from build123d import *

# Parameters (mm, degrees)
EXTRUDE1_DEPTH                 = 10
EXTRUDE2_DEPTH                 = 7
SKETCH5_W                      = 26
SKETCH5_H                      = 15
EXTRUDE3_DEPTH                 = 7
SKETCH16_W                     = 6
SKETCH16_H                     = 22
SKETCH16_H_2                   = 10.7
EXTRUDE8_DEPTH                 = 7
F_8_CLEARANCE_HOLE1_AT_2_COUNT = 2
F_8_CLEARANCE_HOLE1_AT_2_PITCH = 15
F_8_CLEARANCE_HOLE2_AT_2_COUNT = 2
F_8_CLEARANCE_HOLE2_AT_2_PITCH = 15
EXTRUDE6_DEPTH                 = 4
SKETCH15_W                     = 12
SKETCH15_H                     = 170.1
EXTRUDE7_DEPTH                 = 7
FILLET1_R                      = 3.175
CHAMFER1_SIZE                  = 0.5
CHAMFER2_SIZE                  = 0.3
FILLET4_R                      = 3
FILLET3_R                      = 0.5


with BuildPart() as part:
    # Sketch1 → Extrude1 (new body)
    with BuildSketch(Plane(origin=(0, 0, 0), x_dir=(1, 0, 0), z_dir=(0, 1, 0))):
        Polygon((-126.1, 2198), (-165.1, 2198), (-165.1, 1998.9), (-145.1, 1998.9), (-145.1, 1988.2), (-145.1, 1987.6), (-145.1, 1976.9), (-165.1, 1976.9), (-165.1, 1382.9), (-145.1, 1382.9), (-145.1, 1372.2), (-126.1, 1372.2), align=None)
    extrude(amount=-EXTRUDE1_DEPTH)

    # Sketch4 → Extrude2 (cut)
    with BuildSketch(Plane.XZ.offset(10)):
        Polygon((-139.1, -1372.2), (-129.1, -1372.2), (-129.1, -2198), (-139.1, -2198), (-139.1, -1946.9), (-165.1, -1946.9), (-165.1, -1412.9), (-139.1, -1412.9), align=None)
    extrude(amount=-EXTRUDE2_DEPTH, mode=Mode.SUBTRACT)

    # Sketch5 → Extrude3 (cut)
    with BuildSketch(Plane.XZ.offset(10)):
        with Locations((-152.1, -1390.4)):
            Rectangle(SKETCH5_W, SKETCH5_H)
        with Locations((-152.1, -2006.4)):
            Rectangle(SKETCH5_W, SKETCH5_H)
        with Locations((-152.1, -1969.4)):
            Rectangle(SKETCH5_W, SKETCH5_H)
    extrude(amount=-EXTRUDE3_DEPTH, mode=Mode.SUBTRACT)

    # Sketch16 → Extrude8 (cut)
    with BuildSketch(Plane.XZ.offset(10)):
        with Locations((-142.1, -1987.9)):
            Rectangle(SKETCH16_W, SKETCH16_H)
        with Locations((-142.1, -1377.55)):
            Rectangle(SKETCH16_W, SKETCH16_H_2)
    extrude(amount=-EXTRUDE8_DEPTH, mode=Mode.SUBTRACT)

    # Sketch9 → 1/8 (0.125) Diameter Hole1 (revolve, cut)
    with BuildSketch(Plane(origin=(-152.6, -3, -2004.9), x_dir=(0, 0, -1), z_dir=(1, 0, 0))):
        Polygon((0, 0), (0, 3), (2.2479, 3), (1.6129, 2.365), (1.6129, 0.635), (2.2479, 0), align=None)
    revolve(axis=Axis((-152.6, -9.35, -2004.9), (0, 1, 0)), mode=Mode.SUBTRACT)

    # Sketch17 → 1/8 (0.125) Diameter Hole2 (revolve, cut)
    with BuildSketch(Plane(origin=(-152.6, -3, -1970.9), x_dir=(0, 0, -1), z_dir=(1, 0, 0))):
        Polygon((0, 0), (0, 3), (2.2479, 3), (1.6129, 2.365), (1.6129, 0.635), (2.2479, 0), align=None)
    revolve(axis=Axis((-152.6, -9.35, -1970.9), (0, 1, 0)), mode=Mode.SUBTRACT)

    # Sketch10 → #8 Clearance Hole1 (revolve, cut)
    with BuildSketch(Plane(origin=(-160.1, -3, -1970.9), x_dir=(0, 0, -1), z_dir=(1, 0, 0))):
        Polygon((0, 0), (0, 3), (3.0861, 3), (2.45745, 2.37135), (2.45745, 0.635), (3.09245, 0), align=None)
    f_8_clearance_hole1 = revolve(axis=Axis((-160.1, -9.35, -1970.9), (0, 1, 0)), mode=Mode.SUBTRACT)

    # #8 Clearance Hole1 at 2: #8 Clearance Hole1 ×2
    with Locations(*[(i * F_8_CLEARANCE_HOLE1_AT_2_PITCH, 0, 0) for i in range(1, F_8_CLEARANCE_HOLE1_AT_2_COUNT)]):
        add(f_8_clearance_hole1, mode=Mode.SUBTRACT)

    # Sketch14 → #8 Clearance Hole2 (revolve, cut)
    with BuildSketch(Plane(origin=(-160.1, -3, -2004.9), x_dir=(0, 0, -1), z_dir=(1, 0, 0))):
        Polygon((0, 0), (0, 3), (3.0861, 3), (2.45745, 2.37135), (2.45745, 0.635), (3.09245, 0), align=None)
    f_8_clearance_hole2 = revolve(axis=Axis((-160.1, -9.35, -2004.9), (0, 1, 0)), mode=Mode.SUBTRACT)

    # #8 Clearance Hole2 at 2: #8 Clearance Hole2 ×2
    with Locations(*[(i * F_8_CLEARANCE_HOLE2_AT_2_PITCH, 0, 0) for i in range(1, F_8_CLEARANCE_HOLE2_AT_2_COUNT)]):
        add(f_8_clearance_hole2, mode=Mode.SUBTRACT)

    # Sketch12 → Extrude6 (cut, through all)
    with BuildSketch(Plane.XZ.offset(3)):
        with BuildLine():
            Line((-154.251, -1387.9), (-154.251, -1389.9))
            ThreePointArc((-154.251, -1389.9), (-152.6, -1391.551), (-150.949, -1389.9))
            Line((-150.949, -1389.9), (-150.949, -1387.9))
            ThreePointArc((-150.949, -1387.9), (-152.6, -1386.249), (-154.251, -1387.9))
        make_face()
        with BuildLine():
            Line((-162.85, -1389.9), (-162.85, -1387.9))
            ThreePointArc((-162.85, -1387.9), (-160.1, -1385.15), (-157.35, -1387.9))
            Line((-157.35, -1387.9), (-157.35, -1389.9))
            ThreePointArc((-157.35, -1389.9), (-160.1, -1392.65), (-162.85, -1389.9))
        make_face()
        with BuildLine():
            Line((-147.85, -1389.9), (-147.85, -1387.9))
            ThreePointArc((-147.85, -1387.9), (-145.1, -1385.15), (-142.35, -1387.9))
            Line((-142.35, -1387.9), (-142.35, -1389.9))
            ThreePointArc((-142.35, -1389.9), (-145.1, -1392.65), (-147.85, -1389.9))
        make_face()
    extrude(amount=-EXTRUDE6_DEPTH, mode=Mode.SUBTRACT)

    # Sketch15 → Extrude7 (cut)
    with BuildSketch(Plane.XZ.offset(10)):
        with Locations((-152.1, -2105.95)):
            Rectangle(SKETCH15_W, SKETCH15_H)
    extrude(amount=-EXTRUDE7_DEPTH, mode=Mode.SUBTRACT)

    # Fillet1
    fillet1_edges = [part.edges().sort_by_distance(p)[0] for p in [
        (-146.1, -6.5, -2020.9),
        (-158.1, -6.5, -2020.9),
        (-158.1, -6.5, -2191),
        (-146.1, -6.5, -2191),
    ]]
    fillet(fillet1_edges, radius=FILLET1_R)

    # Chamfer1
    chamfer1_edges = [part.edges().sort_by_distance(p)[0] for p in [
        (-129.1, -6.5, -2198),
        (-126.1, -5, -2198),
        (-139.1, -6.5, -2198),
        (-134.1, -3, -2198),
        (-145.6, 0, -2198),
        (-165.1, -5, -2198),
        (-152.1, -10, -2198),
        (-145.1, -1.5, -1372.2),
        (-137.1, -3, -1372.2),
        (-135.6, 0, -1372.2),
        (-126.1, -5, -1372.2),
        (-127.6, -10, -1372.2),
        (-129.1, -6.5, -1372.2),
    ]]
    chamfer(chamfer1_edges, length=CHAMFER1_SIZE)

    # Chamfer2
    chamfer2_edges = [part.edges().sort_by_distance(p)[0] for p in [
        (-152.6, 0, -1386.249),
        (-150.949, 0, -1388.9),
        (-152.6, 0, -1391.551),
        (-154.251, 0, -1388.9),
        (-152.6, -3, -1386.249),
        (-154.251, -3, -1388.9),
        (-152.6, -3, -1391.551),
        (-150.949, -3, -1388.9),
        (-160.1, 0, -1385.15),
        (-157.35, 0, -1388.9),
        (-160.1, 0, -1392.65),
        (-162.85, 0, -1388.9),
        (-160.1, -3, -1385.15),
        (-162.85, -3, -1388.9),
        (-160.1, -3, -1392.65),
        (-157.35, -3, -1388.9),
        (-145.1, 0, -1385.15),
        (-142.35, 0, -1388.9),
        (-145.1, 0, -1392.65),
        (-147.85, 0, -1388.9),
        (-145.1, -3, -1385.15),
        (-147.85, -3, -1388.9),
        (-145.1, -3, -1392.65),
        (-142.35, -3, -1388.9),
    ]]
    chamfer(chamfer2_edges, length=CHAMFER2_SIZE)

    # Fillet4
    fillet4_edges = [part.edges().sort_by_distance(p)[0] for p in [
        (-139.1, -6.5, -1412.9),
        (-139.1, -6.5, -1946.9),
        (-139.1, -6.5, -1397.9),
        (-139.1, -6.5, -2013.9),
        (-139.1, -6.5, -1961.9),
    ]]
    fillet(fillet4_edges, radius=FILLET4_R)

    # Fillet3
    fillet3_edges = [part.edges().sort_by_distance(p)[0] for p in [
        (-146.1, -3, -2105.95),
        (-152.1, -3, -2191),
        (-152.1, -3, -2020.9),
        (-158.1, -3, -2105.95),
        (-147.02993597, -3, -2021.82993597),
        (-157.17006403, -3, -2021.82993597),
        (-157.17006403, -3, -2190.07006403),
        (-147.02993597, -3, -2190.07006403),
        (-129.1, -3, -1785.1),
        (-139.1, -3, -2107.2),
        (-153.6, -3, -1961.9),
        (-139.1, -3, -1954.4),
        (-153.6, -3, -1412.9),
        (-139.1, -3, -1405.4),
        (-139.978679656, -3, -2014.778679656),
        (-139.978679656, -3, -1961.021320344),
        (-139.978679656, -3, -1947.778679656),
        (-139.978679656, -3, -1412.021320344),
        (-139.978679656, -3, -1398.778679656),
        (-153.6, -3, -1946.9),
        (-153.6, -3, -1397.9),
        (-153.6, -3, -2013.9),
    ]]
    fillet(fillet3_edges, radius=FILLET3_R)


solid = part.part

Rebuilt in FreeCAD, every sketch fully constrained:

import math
import FreeCAD as App
import Part
import Sketcher

V = App.Vector
Q = App.Units.Quantity


def edges_at(feature, points):
    """Names of the edges that pass closest to the given points."""
    edges = feature.Shape.Edges
    near = lambda p: min(range(len(edges)), key=lambda i: edges[i].distToShape(Part.Vertex(*p))[0])
    return sorted({f"Edge{near(p) + 1}" for p in points})

doc = App.newDocument("Part")
params = doc.addObject("Spreadsheet::Sheet", "Params")
for row, (alias, value) in enumerate([
    ("sketch1_width", "39 mm"),
    ("sketch1_width2", "20 mm"),
    ("sketch1_height", "22 mm"),
    ("sketch1_height2", "594 mm"),
    ("sketch1_height3", "199.1 mm"),
    ("pad1_length", "10 mm"),
    ("sketch2_width", "10 mm"),
    ("sketch2_width2", "26 mm"),
    ("sketch2_height", "534 mm"),
    ("sketch2_height2", "40.7 mm"),
    ("sketch2_height3", "251.1 mm"),
    ("pocket1_length", "7 mm"),
    ("sketch3_width", "26 mm"),
    ("sketch3_height", "15 mm"),
    ("pocket2_length", "7 mm"),
    ("sketch4_width", "6 mm"),
    ("sketch4_height", "22 mm"),
    ("sketch4_height2", "10.7 mm"),
    ("pocket3_length", "7 mm"),
    ("sketch5_width", "3 mm"),
    ("sketch5_width2", "1.73 mm"),
    ("groove_angle", "360 deg"),
    ("sketch6_width", "3 mm"),
    ("sketch6_width2", "1.73 mm"),
    ("groove2_angle", "360 deg"),
    ("sketch7_width", "3 mm"),
    ("groove3_angle", "360 deg"),
    ("linearpattern_pitch", "15 mm"),
    ("sketch8_width", "3 mm"),
    ("groove4_angle", "360 deg"),
    ("linearpattern2_pitch", "15 mm"),
    ("sketch9_height", "2 mm"),
    ("sketch9_radius", "2.75 mm"),
    ("sketch10_width", "12 mm"),
    ("sketch10_height", "170.1 mm"),
    ("pocket5_length", "7 mm"),
    ("fillet_radius", "3.175 mm"),
    ("chamfer_size", "0.5 mm"),
    ("chamfer2_size", "0.3 mm"),
    ("fillet2_radius", "3 mm"),
    ("fillet3_radius", "0.5 mm"),
], start=1):
    params.set(f"A{row}", alias)
    params.set(f"B{row}", "=" + value)
    params.setAlias(f"B{row}", alias)

body = doc.addObject("PartDesign::Body", "Body")

# Sketch on XZ plane
sketch1 = body.newObject("Sketcher::SketchObject", "Sketch")
sketch1.AttachmentSupport = (doc.getObject("XZ_Plane"), [""])
sketch1.MapMode = "FlatFace"
sketch1.addGeometry([
    Part.LineSegment(V(-126.1, -2198, 0), V(-165.1, -2198, 0)),  # 0
    Part.LineSegment(V(-165.1, -2198, 0), V(-165.1, -1998.9, 0)),  # 1
    Part.LineSegment(V(-165.1, -1998.9, 0), V(-145.1, -1998.9, 0)),  # 2
    Part.LineSegment(V(-145.1, -1998.9, 0), V(-145.1, -1976.9, 0)),  # 3
    Part.LineSegment(V(-145.1, -1976.9, 0), V(-165.1, -1976.9, 0)),  # 4
    Part.LineSegment(V(-165.1, -1976.9, 0), V(-165.1, -1382.9, 0)),  # 5
    Part.LineSegment(V(-165.1, -1382.9, 0), V(-145.1, -1382.9, 0)),  # 6
    Part.LineSegment(V(-145.1, -1382.9, 0), V(-145.1, -1372.2, 0)),  # 7
    Part.LineSegment(V(-145.1, -1372.2, 0), V(-126.1, -1372.2, 0)),  # 8
    Part.LineSegment(V(-126.1, -1372.2, 0), V(-126.1, -2198, 0)),  # 9
], False)
sketch1.addConstraint([
    Sketcher.Constraint("Coincident", 0, 2, 1, 1),
    Sketcher.Constraint("Coincident", 1, 2, 2, 1),
    Sketcher.Constraint("Coincident", 2, 2, 3, 1),
    Sketcher.Constraint("Coincident", 3, 2, 4, 1),
    Sketcher.Constraint("Coincident", 4, 2, 5, 1),
    Sketcher.Constraint("Coincident", 5, 2, 6, 1),
    Sketcher.Constraint("Coincident", 6, 2, 7, 1),
    Sketcher.Constraint("Coincident", 7, 2, 8, 1),
    Sketcher.Constraint("Coincident", 8, 2, 9, 1),
    Sketcher.Constraint("Coincident", 9, 2, 0, 1),
    Sketcher.Constraint("Horizontal", 0),
    Sketcher.Constraint("Vertical", 1),
    Sketcher.Constraint("Horizontal", 2),
    Sketcher.Constraint("Vertical", 3),
    Sketcher.Constraint("Horizontal", 4),
    Sketcher.Constraint("Vertical", 5),
    Sketcher.Constraint("Horizontal", 6),
    Sketcher.Constraint("Vertical", 7),
    Sketcher.Constraint("Horizontal", 8),
    Sketcher.Constraint("Vertical", 9),
    Sketcher.Constraint("Vertical", 1, 2, 4, 2),
    Sketcher.Constraint("Vertical", 3, 2, 6, 2),
    Sketcher.Constraint("DistanceX", 0, 2, 0, 1, Q("39 mm")),
    Sketcher.Constraint("DistanceX", 2, 1, 2, 2, Q("20 mm")),
    Sketcher.Constraint("DistanceY", 3, 1, 3, 2, Q("22 mm")),
    Sketcher.Constraint("DistanceY", 5, 1, 5, 2, Q("594 mm")),
    Sketcher.Constraint("DistanceY", 1, 1, 1, 2, Q("199.1 mm")),
    Sketcher.Constraint("DistanceY", 7, 1, 7, 2, Q("10.7 mm")),
    Sketcher.Constraint("DistanceY", 0, 2, -1, 1, Q("2198 mm")),
    Sketcher.Constraint("DistanceX", 0, 2, -1, 1, Q("165.1 mm")),
])
sketch1.setExpression("Constraints[22]", "Params.sketch1_width")
sketch1.setExpression("Constraints[23]", "Params.sketch1_width2")
sketch1.setExpression("Constraints[24]", "Params.sketch1_height")
sketch1.setExpression("Constraints[25]", "Params.sketch1_height2")
sketch1.setExpression("Constraints[26]", "Params.sketch1_height3")
pad1 = body.newObject("PartDesign::Pad", "Pad")
pad1.Profile = sketch1
pad1.setExpression("Length", "Params.pad1_length")

# Sketch on XZ plane
sketch2 = body.newObject("Sketcher::SketchObject", "Sketch001")
sketch2.AttachmentSupport = (doc.getObject("XZ_Plane"), [""])
sketch2.MapMode = "FlatFace"
sketch2.AttachmentOffset = App.Placement(V(0, 0, 10), App.Rotation())
sketch2.addGeometry([
    Part.LineSegment(V(-129.1, -1372.2, 0), V(-139.1, -1372.2, 0)),  # 0
    Part.LineSegment(V(-139.1, -1372.2, 0), V(-139.1, -1412.9, 0)),  # 1
    Part.LineSegment(V(-139.1, -1412.9, 0), V(-165.1, -1412.9, 0)),  # 2
    Part.LineSegment(V(-165.1, -1412.9, 0), V(-165.1, -1946.9, 0)),  # 3
    Part.LineSegment(V(-165.1, -1946.9, 0), V(-139.1, -1946.9, 0)),  # 4
    Part.LineSegment(V(-139.1, -1946.9, 0), V(-139.1, -2198, 0)),  # 5
    Part.LineSegment(V(-139.1, -2198, 0), V(-129.1, -2198, 0)),  # 6
    Part.LineSegment(V(-129.1, -2198, 0), V(-129.1, -1372.2, 0)),  # 7
], False)
sketch2.addConstraint([
    Sketcher.Constraint("Coincident", 0, 2, 1, 1),
    Sketcher.Constraint("Coincident", 1, 2, 2, 1),
    Sketcher.Constraint("Coincident", 2, 2, 3, 1),
    Sketcher.Constraint("Coincident", 3, 2, 4, 1),
    Sketcher.Constraint("Coincident", 4, 2, 5, 1),
    Sketcher.Constraint("Coincident", 5, 2, 6, 1),
    Sketcher.Constraint("Coincident", 6, 2, 7, 1),
    Sketcher.Constraint("Coincident", 7, 2, 0, 1),
    Sketcher.Constraint("Horizontal", 0),
    Sketcher.Constraint("Vertical", 1),
    Sketcher.Constraint("Horizontal", 2),
    Sketcher.Constraint("Vertical", 3),
    Sketcher.Constraint("Horizontal", 4),
    Sketcher.Constraint("Vertical", 5),
    Sketcher.Constraint("Horizontal", 6),
    Sketcher.Constraint("Vertical", 7),
    Sketcher.Constraint("Vertical", 1, 2, 4, 2),
    Sketcher.Constraint("DistanceX", 0, 2, 0, 1, Q("10 mm")),
    Sketcher.Constraint("DistanceX", 2, 2, 2, 1, Q("26 mm")),
    Sketcher.Constraint("DistanceY", 3, 2, 3, 1, Q("534 mm")),
    Sketcher.Constraint("DistanceY", 1, 2, 1, 1, Q("40.7 mm")),
    Sketcher.Constraint("DistanceY", 5, 2, 5, 1, Q("251.1 mm")),
    Sketcher.Constraint("DistanceY", 5, 2, -1, 1, Q("2198 mm")),
    Sketcher.Constraint("DistanceX", 0, 2, -1, 1, Q("139.1 mm")),
])
sketch2.setExpression("Constraints[17]", "Params.sketch2_width")
sketch2.setExpression("Constraints[18]", "Params.sketch2_width2")
sketch2.setExpression("Constraints[19]", "Params.sketch2_height")
sketch2.setExpression("Constraints[20]", "Params.sketch2_height2")
sketch2.setExpression("Constraints[21]", "Params.sketch2_height3")
pocket1 = body.newObject("PartDesign::Pocket", "Pocket")
pocket1.Profile = sketch2
pocket1.setExpression("Length", "Params.pocket1_length")

# Sketch on XZ plane
sketch3 = body.newObject("Sketcher::SketchObject", "Sketch002")
sketch3.AttachmentSupport = (doc.getObject("XZ_Plane"), [""])
sketch3.MapMode = "FlatFace"
sketch3.AttachmentOffset = App.Placement(V(0, 0, 10), App.Rotation())
sketch3.addGeometry([
    Part.LineSegment(V(-165.1, -1382.9, 0), V(-165.1, -1397.9, 0)),  # 0
    Part.LineSegment(V(-165.1, -1397.9, 0), V(-139.1, -1397.9, 0)),  # 1
    Part.LineSegment(V(-139.1, -1397.9, 0), V(-139.1, -1382.9, 0)),  # 2
    Part.LineSegment(V(-139.1, -1382.9, 0), V(-165.1, -1382.9, 0)),  # 3
    Part.LineSegment(V(-165.1, -1998.9, 0), V(-165.1, -2013.9, 0)),  # 4
    Part.LineSegment(V(-165.1, -2013.9, 0), V(-139.1, -2013.9, 0)),  # 5
    Part.LineSegment(V(-139.1, -2013.9, 0), V(-139.1, -1998.9, 0)),  # 6
    Part.LineSegment(V(-139.1, -1998.9, 0), V(-165.1, -1998.9, 0)),  # 7
    Part.LineSegment(V(-165.1, -1961.9, 0), V(-165.1, -1976.9, 0)),  # 8
    Part.LineSegment(V(-165.1, -1976.9, 0), V(-139.1, -1976.9, 0)),  # 9
    Part.LineSegment(V(-139.1, -1976.9, 0), V(-139.1, -1961.9, 0)),  # 10
    Part.LineSegment(V(-139.1, -1961.9, 0), V(-165.1, -1961.9, 0)),  # 11
], False)
sketch3.addConstraint([
    Sketcher.Constraint("Coincident", 0, 2, 1, 1),
    Sketcher.Constraint("Coincident", 1, 2, 2, 1),
    Sketcher.Constraint("Coincident", 2, 2, 3, 1),
    Sketcher.Constraint("Coincident", 3, 2, 0, 1),
    Sketcher.Constraint("Coincident", 4, 2, 5, 1),
    Sketcher.Constraint("Coincident", 5, 2, 6, 1),
    Sketcher.Constraint("Coincident", 6, 2, 7, 1),
    Sketcher.Constraint("Coincident", 7, 2, 4, 1),
    Sketcher.Constraint("Coincident", 8, 2, 9, 1),
    Sketcher.Constraint("Coincident", 9, 2, 10, 1),
    Sketcher.Constraint("Coincident", 10, 2, 11, 1),
    Sketcher.Constraint("Coincident", 11, 2, 8, 1),
    Sketcher.Constraint("Vertical", 0),
    Sketcher.Constraint("Horizontal", 1),
    Sketcher.Constraint("Vertical", 2),
    Sketcher.Constraint("Horizontal", 3),
    Sketcher.Constraint("Vertical", 4),
    Sketcher.Constraint("Horizontal", 5),
    Sketcher.Constraint("Vertical", 6),
    Sketcher.Constraint("Horizontal", 7),
    Sketcher.Constraint("Vertical", 8),
    Sketcher.Constraint("Horizontal", 9),
    Sketcher.Constraint("Vertical", 10),
    Sketcher.Constraint("Horizontal", 11),
    Sketcher.Constraint("Vertical", 3, 2, 4, 2),
    Sketcher.Constraint("Vertical", 2, 2, 5, 2),
    Sketcher.Constraint("Vertical", 7, 2, 8, 2),
    Sketcher.Constraint("Vertical", 6, 2, 9, 2),
    Sketcher.Constraint("Equal", 2, 4),
    Sketcher.Constraint("Equal", 6, 8),
    Sketcher.Constraint("DistanceX", 1, 1, 1, 2, Q("26 mm")),
    Sketcher.Constraint("DistanceY", 0, 2, 0, 1, Q("15 mm")),
    Sketcher.Constraint("DistanceY", 4, 2, 0, 2, Q("616 mm")),
    Sketcher.Constraint("DistanceY", 7, 2, 8, 2, Q("22 mm")),
    Sketcher.Constraint("DistanceX", 0, 2, -1, 1, Q("165.1 mm")),
    Sketcher.Constraint("DistanceY", 0, 2, -1, 1, Q("1397.9 mm")),
])
sketch3.setExpression("Constraints[30]", "Params.sketch3_width")
sketch3.setExpression("Constraints[31]", "Params.sketch3_height")
pocket2 = body.newObject("PartDesign::Pocket", "Pocket001")
pocket2.Profile = sketch3
pocket2.setExpression("Length", "Params.pocket2_length")

# Sketch on XZ plane
sketch4 = body.newObject("Sketcher::SketchObject", "Sketch003")
sketch4.AttachmentSupport = (doc.getObject("XZ_Plane"), [""])
sketch4.MapMode = "FlatFace"
sketch4.AttachmentOffset = App.Placement(V(0, 0, 10), App.Rotation())
sketch4.addGeometry([
    Part.LineSegment(V(-145.1, -1976.9, 0), V(-145.1, -1998.9, 0)),  # 0
    Part.LineSegment(V(-145.1, -1998.9, 0), V(-139.1, -1998.9, 0)),  # 1
    Part.LineSegment(V(-139.1, -1998.9, 0), V(-139.1, -1976.9, 0)),  # 2
    Part.LineSegment(V(-139.1, -1976.9, 0), V(-145.1, -1976.9, 0)),  # 3
    Part.LineSegment(V(-145.1, -1372.2, 0), V(-145.1, -1382.9, 0)),  # 4
    Part.LineSegment(V(-145.1, -1382.9, 0), V(-139.1, -1382.9, 0)),  # 5
    Part.LineSegment(V(-139.1, -1382.9, 0), V(-139.1, -1372.2, 0)),  # 6
    Part.LineSegment(V(-139.1, -1372.2, 0), V(-145.1, -1372.2, 0)),  # 7
], False)
sketch4.addConstraint([
    Sketcher.Constraint("Coincident", 0, 2, 1, 1),
    Sketcher.Constraint("Coincident", 1, 2, 2, 1),
    Sketcher.Constraint("Coincident", 2, 2, 3, 1),
    Sketcher.Constraint("Coincident", 3, 2, 0, 1),
    Sketcher.Constraint("Coincident", 4, 2, 5, 1),
    Sketcher.Constraint("Coincident", 5, 2, 6, 1),
    Sketcher.Constraint("Coincident", 6, 2, 7, 1),
    Sketcher.Constraint("Coincident", 7, 2, 4, 1),
    Sketcher.Constraint("Vertical", 0),
    Sketcher.Constraint("Horizontal", 1),
    Sketcher.Constraint("Vertical", 2),
    Sketcher.Constraint("Horizontal", 3),
    Sketcher.Constraint("Vertical", 4),
    Sketcher.Constraint("Horizontal", 5),
    Sketcher.Constraint("Vertical", 6),
    Sketcher.Constraint("Horizontal", 7),
    Sketcher.Constraint("Vertical", 3, 2, 4, 2),
    Sketcher.Constraint("Vertical", 2, 2, 5, 2),
    Sketcher.Constraint("DistanceX", 1, 1, 1, 2, Q("6 mm")),
    Sketcher.Constraint("DistanceY", 0, 2, 0, 1, Q("22 mm")),
    Sketcher.Constraint("DistanceY", 4, 2, 4, 1, Q("10.7 mm")),
    Sketcher.Constraint("DistanceY", 3, 2, 4, 2, Q("594 mm")),
    Sketcher.Constraint("DistanceX", 0, 2, -1, 1, Q("145.1 mm")),
    Sketcher.Constraint("DistanceY", 0, 2, -1, 1, Q("1998.9 mm")),
])
sketch4.setExpression("Constraints[18]", "Params.sketch4_width")
sketch4.setExpression("Constraints[19]", "Params.sketch4_height")
sketch4.setExpression("Constraints[20]", "Params.sketch4_height2")
pocket3 = body.newObject("PartDesign::Pocket", "Pocket002")
pocket3.Profile = sketch4
pocket3.setExpression("Length", "Params.pocket3_length")

# Sketch on YZ plane
sketch5 = body.newObject("Sketcher::SketchObject", "Sketch004")
sketch5.AttachmentSupport = (doc.getObject("YZ_Plane"), [""])
sketch5.MapMode = "FlatFace"
sketch5.AttachmentOffset = App.Placement(V(0, 0, -152.6), App.Rotation())
sketch5.addGeometry([
    Part.LineSegment(V(0, -2004.9, 0), V(-3, -2004.9, 0)),  # 0
    Part.LineSegment(V(-3, -2004.9, 0), V(-3, -2007.1479, 0)),  # 1
    Part.LineSegment(V(-3, -2007.1479, 0), V(-2.365, -2006.5129, 0)),  # 2
    Part.LineSegment(V(-2.365, -2006.5129, 0), V(-0.635, -2006.5129, 0)),  # 3
    Part.LineSegment(V(-0.635, -2006.5129, 0), V(0, -2007.1479, 0)),  # 4
    Part.LineSegment(V(0, -2007.1479, 0), V(0, -2004.9, 0)),  # 5
], False)
sketch5.addGeometry(Part.LineSegment(V(-3, -2004.9, 0), V(0, -2004.9, 0)), True)  # axis
sketch5.addConstraint([
    Sketcher.Constraint("Coincident", 0, 2, 1, 1),
    Sketcher.Constraint("Coincident", 1, 2, 2, 1),
    Sketcher.Constraint("Coincident", 2, 2, 3, 1),
    Sketcher.Constraint("Coincident", 3, 2, 4, 1),
    Sketcher.Constraint("Coincident", 4, 2, 5, 1),
    Sketcher.Constraint("Coincident", 5, 2, 0, 1),
    Sketcher.Constraint("Horizontal", 0),
    Sketcher.Constraint("Vertical", 1),
    Sketcher.Constraint("Horizontal", 3),
    Sketcher.Constraint("Vertical", 5),
    Sketcher.Constraint("Horizontal", 6),
    Sketcher.Constraint("Coincident", 6, 1, 0, 2),
    Sketcher.Constraint("PointOnObject", 4, 2, -2),
    Sketcher.Constraint("PointOnObject", 6, 2, -2),
    Sketcher.Constraint("Perpendicular", 2, 4),
    Sketcher.Constraint("Horizontal", 1, 2, 4, 2),
    Sketcher.Constraint("Equal", 2, 4),
    Sketcher.Constraint("DistanceX", 0, 2, 0, 1, Q("3 mm")),
    Sketcher.Constraint("DistanceX", 3, 1, 3, 2, Q("1.73 mm")),
    Sketcher.Constraint("DistanceY", 0, 2, -1, 1, Q("2004.9 mm")),
    Sketcher.Constraint("DistanceY", 1, 2, 1, 1, Q("2.2479 mm")),
])
sketch5.setExpression("Constraints[17]", "Params.sketch5_width")
sketch5.setExpression("Constraints[18]", "Params.sketch5_width2")
groove = body.newObject("PartDesign::Groove", "Groove")
groove.Profile = sketch5
groove.ReferenceAxis = (sketch5, ["Axis0"])
groove.setExpression("Angle", "Params.groove_angle")

# Sketch on YZ plane
sketch6 = body.newObject("Sketcher::SketchObject", "Sketch005")
sketch6.AttachmentSupport = (doc.getObject("YZ_Plane"), [""])
sketch6.MapMode = "FlatFace"
sketch6.AttachmentOffset = App.Placement(V(0, 0, -152.6), App.Rotation())
sketch6.addGeometry([
    Part.LineSegment(V(0, -1970.9, 0), V(-3, -1970.9, 0)),  # 0
    Part.LineSegment(V(-3, -1970.9, 0), V(-3, -1973.1479, 0)),  # 1
    Part.LineSegment(V(-3, -1973.1479, 0), V(-2.365, -1972.5129, 0)),  # 2
    Part.LineSegment(V(-2.365, -1972.5129, 0), V(-0.635, -1972.5129, 0)),  # 3
    Part.LineSegment(V(-0.635, -1972.5129, 0), V(0, -1973.1479, 0)),  # 4
    Part.LineSegment(V(0, -1973.1479, 0), V(0, -1970.9, 0)),  # 5
], False)
sketch6.addGeometry(Part.LineSegment(V(-3, -1970.9, 0), V(0, -1970.9, 0)), True)  # axis
sketch6.addConstraint([
    Sketcher.Constraint("Coincident", 0, 2, 1, 1),
    Sketcher.Constraint("Coincident", 1, 2, 2, 1),
    Sketcher.Constraint("Coincident", 2, 2, 3, 1),
    Sketcher.Constraint("Coincident", 3, 2, 4, 1),
    Sketcher.Constraint("Coincident", 4, 2, 5, 1),
    Sketcher.Constraint("Coincident", 5, 2, 0, 1),
    Sketcher.Constraint("Horizontal", 0),
    Sketcher.Constraint("Vertical", 1),
    Sketcher.Constraint("Horizontal", 3),
    Sketcher.Constraint("Vertical", 5),
    Sketcher.Constraint("Horizontal", 6),
    Sketcher.Constraint("Coincident", 6, 1, 0, 2),
    Sketcher.Constraint("PointOnObject", 4, 2, -2),
    Sketcher.Constraint("PointOnObject", 6, 2, -2),
    Sketcher.Constraint("Perpendicular", 2, 4),
    Sketcher.Constraint("Horizontal", 1, 2, 4, 2),
    Sketcher.Constraint("Equal", 2, 4),
    Sketcher.Constraint("DistanceX", 0, 2, 0, 1, Q("3 mm")),
    Sketcher.Constraint("DistanceX", 3, 1, 3, 2, Q("1.73 mm")),
    Sketcher.Constraint("DistanceY", 0, 2, -1, 1, Q("1970.9 mm")),
    Sketcher.Constraint("DistanceY", 1, 2, 1, 1, Q("2.2479 mm")),
])
sketch6.setExpression("Constraints[17]", "Params.sketch6_width")
sketch6.setExpression("Constraints[18]", "Params.sketch6_width2")
groove2 = body.newObject("PartDesign::Groove", "Groove001")
groove2.Profile = sketch6
groove2.ReferenceAxis = (sketch6, ["Axis0"])
groove2.setExpression("Angle", "Params.groove2_angle")

# Sketch on YZ plane
sketch7 = body.newObject("Sketcher::SketchObject", "Sketch006")
sketch7.AttachmentSupport = (doc.getObject("YZ_Plane"), [""])
sketch7.MapMode = "FlatFace"
sketch7.AttachmentOffset = App.Placement(V(0, 0, -160.1), App.Rotation())
sketch7.addGeometry([
    Part.LineSegment(V(0, -1970.9, 0), V(-3, -1970.9, 0)),  # 0
    Part.LineSegment(V(-3, -1970.9, 0), V(-3, -1973.99245, 0)),  # 1
    Part.LineSegment(V(-3, -1973.99245, 0), V(-2.365, -1973.35745, 0)),  # 2
    Part.LineSegment(V(-2.365, -1973.35745, 0), V(-0.62865, -1973.35745, 0)),  # 3
    Part.LineSegment(V(-0.62865, -1973.35745, 0), V(0, -1973.9861, 0)),  # 4
    Part.LineSegment(V(0, -1973.9861, 0), V(0, -1970.9, 0)),  # 5
], False)
sketch7.addGeometry(Part.LineSegment(V(-3, -1970.9, 0), V(0, -1970.9, 0)), True)  # axis
sketch7.addConstraint([
    Sketcher.Constraint("Coincident", 0, 2, 1, 1),
    Sketcher.Constraint("Coincident", 1, 2, 2, 1),
    Sketcher.Constraint("Coincident", 2, 2, 3, 1),
    Sketcher.Constraint("Coincident", 3, 2, 4, 1),
    Sketcher.Constraint("Coincident", 4, 2, 5, 1),
    Sketcher.Constraint("Coincident", 5, 2, 0, 1),
    Sketcher.Constraint("Horizontal", 0),
    Sketcher.Constraint("Vertical", 1),
    Sketcher.Constraint("Horizontal", 3),
    Sketcher.Constraint("Vertical", 5),
    Sketcher.Constraint("Horizontal", 6),
    Sketcher.Constraint("Coincident", 6, 1, 0, 2),
    Sketcher.Constraint("PointOnObject", 4, 2, -2),
    Sketcher.Constraint("PointOnObject", 6, 2, -2),
    Sketcher.Constraint("Perpendicular", 2, 4),
    Sketcher.Constraint("DistanceX", 0, 2, 0, 1, Q("3 mm")),
    Sketcher.Constraint("Angle", 2, Q("45 deg")),
    Sketcher.Constraint("DistanceY", 0, 2, -1, 1, Q("1970.9 mm")),
    Sketcher.Constraint("DistanceY", 5, 1, 5, 2, Q("3.0861 mm")),
    Sketcher.Constraint("DistanceX", 2, 2, -1, 1, Q("2.365 mm")),
    Sketcher.Constraint("DistanceX", 3, 1, 3, 2, Q("1.73635 mm")),
])
sketch7.setExpression("Constraints[15]", "Params.sketch7_width")
groove3 = body.newObject("PartDesign::Groove", "Groove002")
groove3.Profile = sketch7
groove3.ReferenceAxis = (sketch7, ["Axis0"])
groove3.setExpression("Angle", "Params.groove3_angle")
doc.recompute()

linearpattern = body.newObject("PartDesign::LinearPattern", "LinearPattern")
linearpattern.Originals = [groove3]
linearpattern.Direction = (doc.getObject("X_Axis"), [""])
linearpattern.Mode = "offset"
linearpattern.setExpression("Offset", "Params.linearpattern_pitch")
linearpattern.Occurrences = 2
body.Tip = linearpattern

# Sketch on YZ plane
sketch8 = body.newObject("Sketcher::SketchObject", "Sketch007")
sketch8.AttachmentSupport = (doc.getObject("YZ_Plane"), [""])
sketch8.MapMode = "FlatFace"
sketch8.AttachmentOffset = App.Placement(V(0, 0, -160.1), App.Rotation())
sketch8.addGeometry([
    Part.LineSegment(V(0, -2004.9, 0), V(-3, -2004.9, 0)),  # 0
    Part.LineSegment(V(-3, -2004.9, 0), V(-3, -2007.99245, 0)),  # 1
    Part.LineSegment(V(-3, -2007.99245, 0), V(-2.365, -2007.35745, 0)),  # 2
    Part.LineSegment(V(-2.365, -2007.35745, 0), V(-0.62865, -2007.35745, 0)),  # 3
    Part.LineSegment(V(-0.62865, -2007.35745, 0), V(0, -2007.9861, 0)),  # 4
    Part.LineSegment(V(0, -2007.9861, 0), V(0, -2004.9, 0)),  # 5
], False)
sketch8.addGeometry(Part.LineSegment(V(-3, -2004.9, 0), V(0, -2004.9, 0)), True)  # axis
sketch8.addConstraint([
    Sketcher.Constraint("Coincident", 0, 2, 1, 1),
    Sketcher.Constraint("Coincident", 1, 2, 2, 1),
    Sketcher.Constraint("Coincident", 2, 2, 3, 1),
    Sketcher.Constraint("Coincident", 3, 2, 4, 1),
    Sketcher.Constraint("Coincident", 4, 2, 5, 1),
    Sketcher.Constraint("Coincident", 5, 2, 0, 1),
    Sketcher.Constraint("Horizontal", 0),
    Sketcher.Constraint("Vertical", 1),
    Sketcher.Constraint("Horizontal", 3),
    Sketcher.Constraint("Vertical", 5),
    Sketcher.Constraint("Horizontal", 6),
    Sketcher.Constraint("Coincident", 6, 1, 0, 2),
    Sketcher.Constraint("PointOnObject", 4, 2, -2),
    Sketcher.Constraint("PointOnObject", 6, 2, -2),
    Sketcher.Constraint("Perpendicular", 2, 4),
    Sketcher.Constraint("DistanceX", 0, 2, 0, 1, Q("3 mm")),
    Sketcher.Constraint("Angle", 2, Q("45 deg")),
    Sketcher.Constraint("DistanceY", 0, 2, -1, 1, Q("2004.9 mm")),
    Sketcher.Constraint("DistanceY", 5, 1, 5, 2, Q("3.0861 mm")),
    Sketcher.Constraint("DistanceX", 2, 2, -1, 1, Q("2.365 mm")),
    Sketcher.Constraint("DistanceX", 3, 1, 3, 2, Q("1.73635 mm")),
])
sketch8.setExpression("Constraints[15]", "Params.sketch8_width")
groove4 = body.newObject("PartDesign::Groove", "Groove003")
groove4.Profile = sketch8
groove4.ReferenceAxis = (sketch8, ["Axis0"])
groove4.setExpression("Angle", "Params.groove4_angle")
doc.recompute()

linearpattern2 = body.newObject("PartDesign::LinearPattern", "LinearPattern001")
linearpattern2.Originals = [groove4]
linearpattern2.Direction = (doc.getObject("X_Axis"), [""])
linearpattern2.Mode = "offset"
linearpattern2.setExpression("Offset", "Params.linearpattern2_pitch")
linearpattern2.Occurrences = 2
body.Tip = linearpattern2

# Sketch on XZ plane
sketch9 = body.newObject("Sketcher::SketchObject", "Sketch008")
sketch9.AttachmentSupport = (doc.getObject("XZ_Plane"), [""])
sketch9.MapMode = "FlatFace"
sketch9.AttachmentOffset = App.Placement(V(0, 0, 3), App.Rotation())
sketch9.addGeometry([
    Part.LineSegment(V(-154.251, -1387.9, 0), V(-154.251, -1389.9, 0)),  # 0
    Part.ArcOfCircle(Part.Circle(V(-152.6, -1389.9, 0), V(0, 0, 1), 1.651), math.radians(180), math.radians(360)),  # 1
    Part.LineSegment(V(-150.949, -1389.9, 0), V(-150.949, -1387.9, 0)),  # 2
    Part.ArcOfCircle(Part.Circle(V(-152.6, -1387.9, 0), V(0, 0, 1), 1.651), math.radians(0), math.radians(180)),  # 3
    Part.LineSegment(V(-162.85, -1387.9, 0), V(-162.85, -1389.9, 0)),  # 4
    Part.ArcOfCircle(Part.Circle(V(-160.1, -1389.9, 0), V(0, 0, 1), 2.75), math.radians(180), math.radians(360)),  # 5
    Part.LineSegment(V(-157.35, -1389.9, 0), V(-157.35, -1387.9, 0)),  # 6
    Part.ArcOfCircle(Part.Circle(V(-160.1, -1387.9, 0), V(0, 0, 1), 2.75), math.radians(0), math.radians(180)),  # 7
    Part.LineSegment(V(-147.85, -1387.9, 0), V(-147.85, -1389.9, 0)),  # 8
    Part.ArcOfCircle(Part.Circle(V(-145.1, -1389.9, 0), V(0, 0, 1), 2.75), math.radians(180), math.radians(360)),  # 9
    Part.LineSegment(V(-142.35, -1389.9, 0), V(-142.35, -1387.9, 0)),  # 10
    Part.ArcOfCircle(Part.Circle(V(-145.1, -1387.9, 0), V(0, 0, 1), 2.75), math.radians(0), math.radians(180)),  # 11
], False)
sketch9.addConstraint([
    Sketcher.Constraint("Tangent", 0, 2, 1, 1),
    Sketcher.Constraint("Tangent", 1, 2, 2, 1),
    Sketcher.Constraint("Tangent", 2, 2, 3, 1),
    Sketcher.Constraint("Tangent", 3, 2, 0, 1),
    Sketcher.Constraint("Tangent", 4, 2, 5, 1),
    Sketcher.Constraint("Tangent", 5, 2, 6, 1),
    Sketcher.Constraint("Tangent", 6, 2, 7, 1),
    Sketcher.Constraint("Tangent", 7, 2, 4, 1),
    Sketcher.Constraint("Tangent", 8, 2, 9, 1),
    Sketcher.Constraint("Tangent", 9, 2, 10, 1),
    Sketcher.Constraint("Tangent", 10, 2, 11, 1),
    Sketcher.Constraint("Tangent", 11, 2, 8, 1),
    Sketcher.Constraint("Vertical", 0),
    Sketcher.Constraint("Vertical", 2),
    Sketcher.Constraint("Vertical", 4),
    Sketcher.Constraint("Vertical", 6),
    Sketcher.Constraint("Vertical", 8),
    Sketcher.Constraint("Vertical", 10),
    Sketcher.Constraint("Equal", 7, 9),
    Sketcher.Constraint("Horizontal", 1, 3, 5, 3),
    Sketcher.Constraint("Horizontal", 3, 3, 7, 3),
    Sketcher.Constraint("Horizontal", 5, 3, 9, 3),
    Sketcher.Constraint("Horizontal", 7, 3, 11, 3),
    Sketcher.Constraint("DistanceY", 0, 2, 0, 1, Q("2 mm")),
    Sketcher.Constraint("Radius", 5, Q("2.75 mm")),
    Sketcher.Constraint("Radius", 1, Q("1.651 mm")),
    Sketcher.Constraint("DistanceX", 5, 3, 9, 3, Q("15 mm")),
    Sketcher.Constraint("DistanceX", 1, 3, -1, 1, Q("152.6 mm")),
    Sketcher.Constraint("DistanceY", 1, 3, -1, 1, Q("1389.9 mm")),
    Sketcher.Constraint("DistanceX", 5, 3, -1, 1, Q("160.1 mm")),
])
sketch9.setExpression("Constraints[23]", "Params.sketch9_height")
sketch9.setExpression("Constraints[24]", "Params.sketch9_radius")
pocket4 = body.newObject("PartDesign::Pocket", "Pocket003")
pocket4.Profile = sketch9
pocket4.Type = "ThroughAll"

# Sketch on XZ plane
sketch10 = body.newObject("Sketcher::SketchObject", "Sketch009")
sketch10.AttachmentSupport = (doc.getObject("XZ_Plane"), [""])
sketch10.MapMode = "FlatFace"
sketch10.AttachmentOffset = App.Placement(V(0, 0, 10), App.Rotation())
sketch10.addGeometry([
    Part.LineSegment(V(-158.1, -2020.9, 0), V(-158.1, -2191, 0)),
    Part.LineSegment(V(-158.1, -2191, 0), V(-146.1, -2191, 0)),
    Part.LineSegment(V(-146.1, -2191, 0), V(-146.1, -2020.9, 0)),
    Part.LineSegment(V(-146.1, -2020.9, 0), V(-158.1, -2020.9, 0)),
], False)
sketch10.addConstraint([
    Sketcher.Constraint("Coincident", 0, 2, 1, 1),
    Sketcher.Constraint("Coincident", 1, 2, 2, 1),
    Sketcher.Constraint("Coincident", 2, 2, 3, 1),
    Sketcher.Constraint("Coincident", 3, 2, 0, 1),
    Sketcher.Constraint("Vertical", 0),
    Sketcher.Constraint("Horizontal", 1),
    Sketcher.Constraint("Vertical", 2),
    Sketcher.Constraint("Horizontal", 3),
    Sketcher.Constraint("DistanceX", 1, 1, 1, 2, Q("12 mm")),
    Sketcher.Constraint("DistanceY", 0, 2, 0, 1, Q("170.1 mm")),
    Sketcher.Constraint("DistanceY", 0, 2, -1, 1, Q("2191 mm")),
    Sketcher.Constraint("DistanceX", 0, 2, -1, 1, Q("158.1 mm")),
])
sketch10.setExpression("Constraints[8]", "Params.sketch10_width")
sketch10.setExpression("Constraints[9]", "Params.sketch10_height")
pocket5 = body.newObject("PartDesign::Pocket", "Pocket004")
pocket5.Profile = sketch10
pocket5.setExpression("Length", "Params.pocket5_length")
doc.recompute()

fillet = body.newObject("PartDesign::Fillet", "Fillet")
fillet.Base = (pocket5, edges_at(pocket5, [
    (-146.1, -6.5, -2020.9),
    (-158.1, -6.5, -2020.9),
    (-158.1, -6.5, -2191),
    (-146.1, -6.5, -2191),
]))
fillet.setExpression("Radius", "Params.fillet_radius")
doc.recompute()

chamfer = body.newObject("PartDesign::Chamfer", "Chamfer")
chamfer.Base = (fillet, edges_at(fillet, [
    (-129.1, -6.5, -2198),
    (-126.1, -5, -2198),
    (-139.1, -6.5, -2198),
    (-134.1, -3, -2198),
    (-145.6, 0, -2198),
    (-165.1, -5, -2198),
    (-152.1, -10, -2198),
    (-145.1, -1.5, -1372.2),
    (-137.1, -3, -1372.2),
    (-135.6, 0, -1372.2),
    (-126.1, -5, -1372.2),
    (-127.6, -10, -1372.2),
    (-129.1, -6.5, -1372.2),
]))
chamfer.setExpression("Size", "Params.chamfer_size")
doc.recompute()

chamfer2 = body.newObject("PartDesign::Chamfer", "Chamfer001")
chamfer2.Base = (chamfer, edges_at(chamfer, [
    (-152.6, 0, -1386.249),
    (-150.949, 0, -1388.9),
    (-152.6, 0, -1391.551),
    (-154.251, 0, -1388.9),
    (-152.6, -3, -1386.249),
    (-154.251, -3, -1388.9),
    (-152.6, -3, -1391.551),
    (-150.949, -3, -1388.9),
    (-160.1, 0, -1385.15),
    (-157.35, 0, -1388.9),
    (-160.1, 0, -1392.65),
    (-162.85, 0, -1388.9),
    (-160.1, -3, -1385.15),
    (-162.85, -3, -1388.9),
    (-160.1, -3, -1392.65),
    (-157.35, -3, -1388.9),
    (-145.1, 0, -1385.15),
    (-142.35, 0, -1388.9),
    (-145.1, 0, -1392.65),
    (-147.85, 0, -1388.9),
    (-145.1, -3, -1385.15),
    (-147.85, -3, -1388.9),
    (-145.1, -3, -1392.65),
    (-142.35, -3, -1388.9),
]))
chamfer2.setExpression("Size", "Params.chamfer2_size")
doc.recompute()

fillet2 = body.newObject("PartDesign::Fillet", "Fillet001")
fillet2.Base = (chamfer2, edges_at(chamfer2, [
    (-139.1, -6.5, -1412.9),
    (-139.1, -6.5, -1946.9),
    (-139.1, -6.5, -1397.9),
    (-139.1, -6.5, -2013.9),
    (-139.1, -6.5, -1961.9),
]))
fillet2.setExpression("Radius", "Params.fillet2_radius")
doc.recompute()

fillet3 = body.newObject("PartDesign::Fillet", "Fillet002")
fillet3.Base = (fillet2, edges_at(fillet2, [
    (-146.1, -3, -2105.95),
    (-152.1, -3, -2191),
    (-152.1, -3, -2020.9),
    (-158.1, -3, -2105.95),
    (-147.03, -3, -2021.83),
    (-157.17, -3, -2021.83),
    (-157.17, -3, -2190.07),
    (-147.03, -3, -2190.07),
    (-129.1, -3, -1785.1),
    (-139.1, -3, -2107.2),
    (-153.6, -3, -1961.9),
    (-139.1, -3, -1954.4),
    (-153.6, -3, -1412.9),
    (-139.1, -3, -1405.4),
    (-139.979, -3, -2014.779),
    (-139.979, -3, -1961.021),
    (-139.979, -3, -1947.779),
    (-139.979, -3, -1412.021),
    (-139.979, -3, -1398.779),
    (-153.6, -3, -1946.9),
    (-153.6, -3, -1397.9),
    (-153.6, -3, -2013.9),
]))
fillet3.setExpression("Radius", "Params.fillet3_radius")

doc.recompute()
